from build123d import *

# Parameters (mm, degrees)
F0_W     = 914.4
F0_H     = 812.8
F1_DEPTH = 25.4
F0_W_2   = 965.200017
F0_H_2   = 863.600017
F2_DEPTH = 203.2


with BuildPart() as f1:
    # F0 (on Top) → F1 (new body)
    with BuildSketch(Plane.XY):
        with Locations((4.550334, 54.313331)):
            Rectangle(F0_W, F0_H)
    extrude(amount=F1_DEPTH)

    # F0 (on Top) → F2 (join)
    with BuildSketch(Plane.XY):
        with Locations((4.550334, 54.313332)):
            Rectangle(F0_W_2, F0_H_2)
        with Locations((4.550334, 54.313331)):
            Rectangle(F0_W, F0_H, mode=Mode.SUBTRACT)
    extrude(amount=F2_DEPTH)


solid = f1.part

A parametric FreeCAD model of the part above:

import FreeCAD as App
import Part
import Sketcher
Q = App.Units.Quantity


def add_polygon(sketch, points):
    """Adds a closed chain of lines whose ends are joined by coincident constraints."""
    first, n = sketch.GeometryCount, len(points)
    for a, b in zip(points, points[1:] + points[:1]):
        sketch.addGeometry(Part.LineSegment(App.Vector(*a, 0), App.Vector(*b, 0)), False)
    for i in range(n):
        sketch.addConstraint(Sketcher.Constraint("Coincident", first + i, 2, first + (i + 1) % n, 1))

doc = App.newDocument("Part")
body = doc.addObject("PartDesign::Body", "Body")

sketch1 = doc.addObject("Sketcher::SketchObject", "Sketch")
body.addObject(sketch1)
sketch1.AttachmentSupport = (doc.XY_Plane, [""])
sketch1.MapMode = "FlatFace"
add_polygon(sketch1, [(-453, 461), (-453, -352), (462, -352), (462, 461)])
sketch1.addConstraint([
    Sketcher.Constraint("Vertical", 0),
    Sketcher.Constraint("Horizontal", 1),
    Sketcher.Constraint("Vertical", 2),
    Sketcher.Constraint("Horizontal", 3),
    Sketcher.Constraint("DistanceX", 1, 1, 1, 2, Q("36 in")),
    Sketcher.Constraint("DistanceY", 0, 2, 0, 1, Q("32 in")),
    Sketcher.Constraint("DistanceY", 0, 2, -1, 1, Q("352.086669 mm")),
    Sketcher.Constraint("DistanceX", 0, 2, -1, 1, Q("452.649666 mm")),
])
pad1 = doc.addObject("PartDesign::Pad", "Pad")
body.addObject(pad1)
pad1.Profile = sketch1
pad1.Length = Q("1 in")

sketch2 = doc.addObject("Sketcher::SketchObject", "Sketch001")
body.addObject(sketch2)
sketch2.AttachmentSupport = (doc.XY_Plane, [""])
sketch2.MapMode = "FlatFace"
add_polygon(sketch2, [(-478, 486), (-478, -377), (487, -377), (487, 486)])
add_polygon(sketch2, [(462, -352), (-453, -352), (-453, 461), (462, 461)])
sketch2.addConstraint([
    Sketcher.Constraint("Vertical", 0),
    Sketcher.Constraint("Horizontal", 1),
    Sketcher.Constraint("Vertical", 2),
    Sketcher.Constraint("Horizontal", 3),
    Sketcher.Constraint("Horizontal", 4),
    Sketcher.Constraint("Vertical", 5),
    Sketcher.Constraint("Horizontal", 6),
    Sketcher.Constraint("Vertical", 7),
    Sketcher.Constraint("DistanceX", 4, 2, 4, 1, Q("36 in")),
    Sketcher.Constraint("DistanceY", 5, 1, 5, 2, Q("32 in")),
    Sketcher.Constraint("DistanceX", 1, 1, 1, 2, Q("965.200017 mm")),
    Sketcher.Constraint("DistanceY", 0, 2, 0, 1, Q("863.600017 mm")),
    Sketcher.Constraint("DistanceY", -1, 1, 2, 2, Q("486.11334 mm")),
    Sketcher.Constraint("DistanceY", 4, 2, -1, 1, Q("352.086669 mm")),
    Sketcher.Constraint("DistanceX", 0, 2, 4, 2, Q("25.400008 mm")),
    Sketcher.Constraint("DistanceX", 0, 2, -1, 1, Q("478.049674 mm")),
])
pad2 = doc.addObject("PartDesign::Pad", "Pad001")
body.addObject(pad2)
pad2.Profile = sketch2
pad2.Length = Q("8 in")

doc.recompute()
